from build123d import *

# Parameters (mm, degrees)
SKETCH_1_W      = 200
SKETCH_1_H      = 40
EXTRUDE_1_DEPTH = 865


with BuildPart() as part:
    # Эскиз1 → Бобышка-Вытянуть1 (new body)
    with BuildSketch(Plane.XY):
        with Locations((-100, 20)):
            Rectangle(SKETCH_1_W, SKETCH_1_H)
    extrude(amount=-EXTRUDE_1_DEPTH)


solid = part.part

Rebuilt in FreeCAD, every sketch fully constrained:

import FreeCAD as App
import Part
import Sketcher

V = App.Vector

doc = App.newDocument("Part")
body = doc.addObject("PartDesign::Body", "Body")

sketch1 = body.newObject("Sketcher::SketchObject", "Sketch")
sketch1.AttachmentSupport = (doc.getObject("XY_Plane"), [""])
sketch1.MapMode = "FlatFace"
sketch1.addGeometry([
    Part.LineSegment(V(-200, 40, 0), V(-200, 0, 0)),
    Part.LineSegment(V(-200, 0, 0), V(0, 0, 0)),
    Part.LineSegment(V(0, 0, 0), V(0, 40, 0)),
    Part.LineSegment(V(0, 40, 0), V(-200, 40, 0)),
], False)
sketch1.addConstraint([
    Sketcher.Constraint("Coincident", 0, 2, 1, 1),
    Sketcher.Constraint("Coincident", 1, 2, 2, 1),
    Sketcher.Constraint("Coincident", 2, 2, 3, 1),
    Sketcher.Constraint("Coincident", 3, 2, 0, 1),
    Sketcher.Constraint("Vertical", 0),
    Sketcher.Constraint("Horizontal", 1),
    Sketcher.Constraint("Vertical", 2),
    Sketcher.Constraint("Horizontal", 3),
    Sketcher.Constraint("Coincident", 1, 2, -1, 1),
    Sketcher.Constraint("DistanceX", 1, 1, 1, 2, 200.0),
    Sketcher.Constraint("DistanceY", 0, 2, 0, 1, 40.0),
])
pad1 = body.newObject("PartDesign::Pad", "Pad")
pad1.Profile = sketch1
pad1.Length = 865
pad1.Reversed = True

doc.recompute()
